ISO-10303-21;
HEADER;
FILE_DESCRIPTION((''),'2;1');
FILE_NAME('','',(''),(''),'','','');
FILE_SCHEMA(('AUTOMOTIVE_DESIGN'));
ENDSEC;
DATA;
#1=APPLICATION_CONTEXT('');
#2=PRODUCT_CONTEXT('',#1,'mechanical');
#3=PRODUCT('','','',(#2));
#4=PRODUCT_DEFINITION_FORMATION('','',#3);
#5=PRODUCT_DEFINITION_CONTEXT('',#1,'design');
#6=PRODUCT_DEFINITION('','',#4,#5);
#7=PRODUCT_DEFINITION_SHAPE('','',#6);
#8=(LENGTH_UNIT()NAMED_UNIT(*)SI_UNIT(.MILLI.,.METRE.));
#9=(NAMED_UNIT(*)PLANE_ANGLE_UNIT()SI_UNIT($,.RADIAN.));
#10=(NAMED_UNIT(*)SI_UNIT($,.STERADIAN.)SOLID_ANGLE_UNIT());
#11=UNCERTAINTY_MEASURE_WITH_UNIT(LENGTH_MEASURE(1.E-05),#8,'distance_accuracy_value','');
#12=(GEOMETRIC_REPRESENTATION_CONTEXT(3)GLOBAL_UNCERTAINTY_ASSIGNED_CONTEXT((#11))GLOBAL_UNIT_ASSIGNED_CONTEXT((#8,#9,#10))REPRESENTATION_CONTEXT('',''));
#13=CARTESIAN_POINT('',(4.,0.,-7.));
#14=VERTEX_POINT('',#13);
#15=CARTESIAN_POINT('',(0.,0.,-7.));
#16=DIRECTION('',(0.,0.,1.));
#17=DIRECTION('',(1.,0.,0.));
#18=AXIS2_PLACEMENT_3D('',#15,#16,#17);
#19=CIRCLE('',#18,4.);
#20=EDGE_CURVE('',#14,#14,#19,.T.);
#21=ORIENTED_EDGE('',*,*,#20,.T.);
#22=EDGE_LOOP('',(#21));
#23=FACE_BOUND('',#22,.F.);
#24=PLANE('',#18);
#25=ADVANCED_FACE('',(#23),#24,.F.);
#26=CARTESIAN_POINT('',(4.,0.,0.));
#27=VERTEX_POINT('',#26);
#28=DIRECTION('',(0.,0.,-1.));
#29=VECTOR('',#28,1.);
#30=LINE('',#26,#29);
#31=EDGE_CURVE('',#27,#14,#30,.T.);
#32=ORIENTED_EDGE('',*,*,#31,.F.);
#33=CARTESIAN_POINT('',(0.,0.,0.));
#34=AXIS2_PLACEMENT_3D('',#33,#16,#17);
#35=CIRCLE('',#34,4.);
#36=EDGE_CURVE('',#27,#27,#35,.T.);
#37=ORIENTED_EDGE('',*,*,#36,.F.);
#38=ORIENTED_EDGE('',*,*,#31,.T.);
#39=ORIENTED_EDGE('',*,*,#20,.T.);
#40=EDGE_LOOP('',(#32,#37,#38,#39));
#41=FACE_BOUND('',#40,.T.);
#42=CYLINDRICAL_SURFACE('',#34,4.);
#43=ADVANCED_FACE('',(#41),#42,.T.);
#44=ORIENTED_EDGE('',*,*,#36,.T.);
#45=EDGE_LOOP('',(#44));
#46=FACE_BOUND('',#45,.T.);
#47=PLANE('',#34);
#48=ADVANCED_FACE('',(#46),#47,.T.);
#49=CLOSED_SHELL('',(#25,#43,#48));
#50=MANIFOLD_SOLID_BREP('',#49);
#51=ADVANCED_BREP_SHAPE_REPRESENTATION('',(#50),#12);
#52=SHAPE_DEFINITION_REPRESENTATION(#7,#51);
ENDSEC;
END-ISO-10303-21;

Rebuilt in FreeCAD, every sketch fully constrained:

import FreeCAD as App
import Part
import Sketcher

doc = App.newDocument("Part")
body = doc.addObject("PartDesign::Body", "Body")

sketch1 = doc.addObject("Sketcher::SketchObject", "Sketch")
body.addObject(sketch1)
sketch1.AttachmentSupport = (doc.XY_Plane, [""])
sketch1.MapMode = "FlatFace"
sketch1.addGeometry(Part.Circle(App.Vector(0, 0, 0), App.Vector(0, 0, 1), 4), False)
sketch1.addConstraint([
    Sketcher.Constraint("Coincident", 0, 3, -1, 1),
    Sketcher.Constraint("Diameter", 0, 8.0),
])
pad1 = doc.addObject("PartDesign::Pad", "Pad")
body.addObject(pad1)
pad1.Profile = sketch1
pad1.Length = 7
pad1.Reversed = True

doc.recompute()
